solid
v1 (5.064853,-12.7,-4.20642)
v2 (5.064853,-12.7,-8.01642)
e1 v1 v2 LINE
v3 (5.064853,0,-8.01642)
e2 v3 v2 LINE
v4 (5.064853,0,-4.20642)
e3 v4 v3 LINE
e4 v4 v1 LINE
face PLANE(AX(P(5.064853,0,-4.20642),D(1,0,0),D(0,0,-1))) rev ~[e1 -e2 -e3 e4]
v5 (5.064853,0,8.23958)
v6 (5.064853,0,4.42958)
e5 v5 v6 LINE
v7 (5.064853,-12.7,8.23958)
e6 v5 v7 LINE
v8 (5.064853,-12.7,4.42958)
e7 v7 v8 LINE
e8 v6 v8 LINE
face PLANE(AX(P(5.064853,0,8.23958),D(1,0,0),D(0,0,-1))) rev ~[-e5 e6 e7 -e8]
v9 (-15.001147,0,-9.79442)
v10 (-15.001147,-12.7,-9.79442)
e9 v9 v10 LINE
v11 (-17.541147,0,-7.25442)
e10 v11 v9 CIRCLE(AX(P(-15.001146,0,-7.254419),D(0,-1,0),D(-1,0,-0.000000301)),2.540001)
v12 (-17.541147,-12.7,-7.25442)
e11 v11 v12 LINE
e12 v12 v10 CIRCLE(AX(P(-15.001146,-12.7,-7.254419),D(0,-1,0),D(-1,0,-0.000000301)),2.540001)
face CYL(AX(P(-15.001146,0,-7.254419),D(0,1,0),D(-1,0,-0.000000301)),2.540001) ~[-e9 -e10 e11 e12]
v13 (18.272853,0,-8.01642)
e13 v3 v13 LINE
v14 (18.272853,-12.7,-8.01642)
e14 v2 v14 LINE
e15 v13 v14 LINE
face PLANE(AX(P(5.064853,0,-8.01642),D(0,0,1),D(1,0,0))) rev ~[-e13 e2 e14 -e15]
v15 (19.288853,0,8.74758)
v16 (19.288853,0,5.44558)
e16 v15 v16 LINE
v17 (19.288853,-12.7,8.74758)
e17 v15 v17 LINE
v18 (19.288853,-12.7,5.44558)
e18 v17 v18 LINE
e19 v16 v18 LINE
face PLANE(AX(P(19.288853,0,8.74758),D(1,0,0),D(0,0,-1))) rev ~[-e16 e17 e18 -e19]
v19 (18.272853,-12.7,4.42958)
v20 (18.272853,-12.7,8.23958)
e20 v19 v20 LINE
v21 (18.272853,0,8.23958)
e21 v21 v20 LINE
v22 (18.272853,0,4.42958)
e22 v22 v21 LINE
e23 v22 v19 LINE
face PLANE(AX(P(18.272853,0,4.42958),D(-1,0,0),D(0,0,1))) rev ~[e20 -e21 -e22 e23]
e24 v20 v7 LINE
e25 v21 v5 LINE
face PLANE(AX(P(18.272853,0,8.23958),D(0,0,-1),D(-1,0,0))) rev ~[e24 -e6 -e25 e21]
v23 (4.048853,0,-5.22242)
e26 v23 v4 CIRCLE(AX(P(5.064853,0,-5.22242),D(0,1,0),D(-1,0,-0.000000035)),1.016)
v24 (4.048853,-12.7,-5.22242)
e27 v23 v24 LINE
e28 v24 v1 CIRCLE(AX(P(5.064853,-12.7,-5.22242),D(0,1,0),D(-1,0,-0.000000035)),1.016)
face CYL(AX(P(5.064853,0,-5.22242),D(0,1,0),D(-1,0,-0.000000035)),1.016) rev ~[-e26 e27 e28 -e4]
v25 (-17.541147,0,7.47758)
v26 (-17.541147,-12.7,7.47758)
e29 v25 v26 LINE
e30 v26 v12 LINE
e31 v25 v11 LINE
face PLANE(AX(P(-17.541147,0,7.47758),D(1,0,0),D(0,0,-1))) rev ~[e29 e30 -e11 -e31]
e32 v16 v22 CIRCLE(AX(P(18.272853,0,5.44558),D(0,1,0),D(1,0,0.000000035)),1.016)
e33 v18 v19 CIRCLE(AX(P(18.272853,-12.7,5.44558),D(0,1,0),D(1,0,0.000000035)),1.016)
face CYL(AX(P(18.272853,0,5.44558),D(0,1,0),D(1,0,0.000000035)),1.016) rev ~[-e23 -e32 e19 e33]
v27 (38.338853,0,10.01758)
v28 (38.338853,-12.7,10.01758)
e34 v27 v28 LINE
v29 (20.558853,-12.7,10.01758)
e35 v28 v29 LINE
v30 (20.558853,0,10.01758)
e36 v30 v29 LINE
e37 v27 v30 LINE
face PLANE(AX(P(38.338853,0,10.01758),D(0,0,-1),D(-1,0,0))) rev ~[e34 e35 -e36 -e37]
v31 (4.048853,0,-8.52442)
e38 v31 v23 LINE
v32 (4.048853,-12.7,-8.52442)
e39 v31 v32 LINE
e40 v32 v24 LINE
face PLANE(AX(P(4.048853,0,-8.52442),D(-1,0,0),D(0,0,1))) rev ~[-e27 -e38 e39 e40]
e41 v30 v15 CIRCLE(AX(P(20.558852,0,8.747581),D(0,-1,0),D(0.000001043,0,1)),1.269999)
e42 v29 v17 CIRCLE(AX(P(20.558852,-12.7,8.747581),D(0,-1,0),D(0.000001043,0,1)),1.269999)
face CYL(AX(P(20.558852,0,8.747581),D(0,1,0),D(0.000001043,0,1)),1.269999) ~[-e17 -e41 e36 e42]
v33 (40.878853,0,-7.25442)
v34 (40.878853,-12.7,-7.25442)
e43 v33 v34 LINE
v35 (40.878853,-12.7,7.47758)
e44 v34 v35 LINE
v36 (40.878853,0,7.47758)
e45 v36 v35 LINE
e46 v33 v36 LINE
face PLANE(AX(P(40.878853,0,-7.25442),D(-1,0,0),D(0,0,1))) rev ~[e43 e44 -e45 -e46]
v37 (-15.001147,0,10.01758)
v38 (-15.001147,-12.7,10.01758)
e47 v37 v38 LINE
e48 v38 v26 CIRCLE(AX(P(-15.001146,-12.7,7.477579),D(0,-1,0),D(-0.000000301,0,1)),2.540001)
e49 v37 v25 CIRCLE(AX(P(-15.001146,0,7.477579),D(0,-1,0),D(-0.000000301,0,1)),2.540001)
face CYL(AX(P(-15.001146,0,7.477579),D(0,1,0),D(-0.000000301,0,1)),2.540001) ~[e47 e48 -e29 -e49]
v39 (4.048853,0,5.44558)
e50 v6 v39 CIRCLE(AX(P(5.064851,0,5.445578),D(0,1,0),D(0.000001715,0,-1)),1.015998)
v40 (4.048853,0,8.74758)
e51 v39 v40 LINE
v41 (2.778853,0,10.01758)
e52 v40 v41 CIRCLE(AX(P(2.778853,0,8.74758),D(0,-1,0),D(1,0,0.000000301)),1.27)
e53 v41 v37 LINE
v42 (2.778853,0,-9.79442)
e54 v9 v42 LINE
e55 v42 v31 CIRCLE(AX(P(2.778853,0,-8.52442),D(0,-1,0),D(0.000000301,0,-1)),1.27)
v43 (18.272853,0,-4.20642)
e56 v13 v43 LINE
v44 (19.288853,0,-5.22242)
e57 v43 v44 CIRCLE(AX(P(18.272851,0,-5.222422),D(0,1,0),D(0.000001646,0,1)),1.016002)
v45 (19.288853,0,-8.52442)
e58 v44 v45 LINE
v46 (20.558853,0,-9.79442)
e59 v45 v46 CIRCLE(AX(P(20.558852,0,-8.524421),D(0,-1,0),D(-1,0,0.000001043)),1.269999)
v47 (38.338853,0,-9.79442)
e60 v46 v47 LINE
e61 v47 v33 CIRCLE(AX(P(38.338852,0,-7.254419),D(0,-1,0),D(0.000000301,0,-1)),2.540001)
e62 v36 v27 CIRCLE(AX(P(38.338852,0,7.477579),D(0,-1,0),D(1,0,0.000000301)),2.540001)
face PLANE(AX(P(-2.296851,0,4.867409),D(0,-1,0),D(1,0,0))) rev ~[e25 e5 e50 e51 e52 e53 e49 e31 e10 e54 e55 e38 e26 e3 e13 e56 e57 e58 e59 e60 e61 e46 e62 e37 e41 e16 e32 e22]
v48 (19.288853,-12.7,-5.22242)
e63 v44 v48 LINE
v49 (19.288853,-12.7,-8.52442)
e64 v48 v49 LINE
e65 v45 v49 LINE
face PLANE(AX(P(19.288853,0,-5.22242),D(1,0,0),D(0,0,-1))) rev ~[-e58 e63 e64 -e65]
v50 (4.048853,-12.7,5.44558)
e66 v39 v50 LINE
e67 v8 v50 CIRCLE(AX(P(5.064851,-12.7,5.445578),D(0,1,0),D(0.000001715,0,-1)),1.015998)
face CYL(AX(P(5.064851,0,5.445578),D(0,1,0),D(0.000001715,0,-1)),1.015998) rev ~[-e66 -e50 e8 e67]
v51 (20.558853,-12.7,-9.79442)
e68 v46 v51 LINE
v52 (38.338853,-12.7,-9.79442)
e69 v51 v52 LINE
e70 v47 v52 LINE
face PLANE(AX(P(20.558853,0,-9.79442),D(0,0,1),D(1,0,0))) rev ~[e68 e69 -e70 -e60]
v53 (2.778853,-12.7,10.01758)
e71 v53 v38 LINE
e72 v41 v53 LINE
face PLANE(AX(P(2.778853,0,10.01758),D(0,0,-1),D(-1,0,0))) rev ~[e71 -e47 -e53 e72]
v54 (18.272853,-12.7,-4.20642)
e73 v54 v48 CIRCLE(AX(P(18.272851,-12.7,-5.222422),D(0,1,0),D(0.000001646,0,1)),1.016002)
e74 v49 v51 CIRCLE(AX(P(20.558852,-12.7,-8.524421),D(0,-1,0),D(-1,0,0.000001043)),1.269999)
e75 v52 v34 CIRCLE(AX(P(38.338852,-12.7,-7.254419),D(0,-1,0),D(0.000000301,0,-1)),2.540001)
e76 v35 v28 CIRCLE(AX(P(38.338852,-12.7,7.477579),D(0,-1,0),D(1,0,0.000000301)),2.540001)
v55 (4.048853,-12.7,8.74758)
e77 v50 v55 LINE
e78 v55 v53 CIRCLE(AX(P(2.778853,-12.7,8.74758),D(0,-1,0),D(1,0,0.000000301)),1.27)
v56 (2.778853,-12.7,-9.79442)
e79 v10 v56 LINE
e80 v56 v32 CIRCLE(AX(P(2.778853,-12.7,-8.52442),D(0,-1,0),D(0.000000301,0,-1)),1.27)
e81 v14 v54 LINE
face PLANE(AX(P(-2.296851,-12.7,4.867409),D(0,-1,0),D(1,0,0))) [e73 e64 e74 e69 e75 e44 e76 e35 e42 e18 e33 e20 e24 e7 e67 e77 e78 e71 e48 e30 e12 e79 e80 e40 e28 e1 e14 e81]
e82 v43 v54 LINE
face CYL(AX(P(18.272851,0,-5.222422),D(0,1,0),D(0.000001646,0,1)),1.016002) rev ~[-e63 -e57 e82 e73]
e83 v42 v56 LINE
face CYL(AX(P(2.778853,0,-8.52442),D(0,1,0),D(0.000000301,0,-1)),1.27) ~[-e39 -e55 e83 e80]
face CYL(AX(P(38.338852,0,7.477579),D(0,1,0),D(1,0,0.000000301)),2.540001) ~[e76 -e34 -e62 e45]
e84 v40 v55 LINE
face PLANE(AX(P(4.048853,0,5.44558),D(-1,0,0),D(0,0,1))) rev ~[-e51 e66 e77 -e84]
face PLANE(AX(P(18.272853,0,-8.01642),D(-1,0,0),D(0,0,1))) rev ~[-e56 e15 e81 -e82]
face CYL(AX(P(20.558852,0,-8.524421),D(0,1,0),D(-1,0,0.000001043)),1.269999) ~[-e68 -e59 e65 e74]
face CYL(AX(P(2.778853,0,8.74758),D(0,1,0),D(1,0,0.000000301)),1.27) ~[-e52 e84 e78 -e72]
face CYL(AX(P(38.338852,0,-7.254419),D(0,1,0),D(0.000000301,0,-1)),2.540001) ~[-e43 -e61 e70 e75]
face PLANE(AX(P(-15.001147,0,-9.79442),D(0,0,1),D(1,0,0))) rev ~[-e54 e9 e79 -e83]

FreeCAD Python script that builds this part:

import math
import FreeCAD as App
import Part
import Sketcher
from FreeCAD import Vector
Q = App.Units.Quantity

doc = App.newDocument("Part")
body = doc.addObject("PartDesign::Body", "Body")

sketch1 = body.newObject("Sketcher::SketchObject", "Sketch")
sketch1.AttachmentSupport = (doc.getObject("XZ_Plane"), [""])
sketch1.MapMode = "FlatFace"
sketch1.addGeometry([
    Part.ArcOfCircle(Part.Circle(Vector(-15.001146, 7.477579, 0), Vector(0, 0, 1), 2.540001), math.radians(90.000017), math.radians(179.999983)),
    Part.LineSegment(Vector(-17.541147, 7.47758, 0), Vector(-17.541147, -7.25442, 0)),
    Part.ArcOfCircle(Part.Circle(Vector(-15.001146, -7.254419, 0), Vector(0, 0, 1), 2.540001), math.radians(-179.999983), math.radians(-90.000017)),
    Part.LineSegment(Vector(-15.001147, -9.79442, 0), Vector(2.778853, -9.79442, 0)),
    Part.ArcOfCircle(Part.Circle(Vector(2.778853, -8.52442, 0), Vector(0, 0, 1), 1.27), math.radians(-89.999983), math.radians(-0.000017)),
    Part.LineSegment(Vector(4.048853, -8.52442, 0), Vector(4.048853, -5.22242, 0)),
    Part.ArcOfCircle(Part.Circle(Vector(5.064853, -5.22242, 0), Vector(0, 0, 1), 1.016), math.radians(89.999998), math.radians(180.000002)),
    Part.LineSegment(Vector(5.064853, -4.20642, 0), Vector(5.064853, -8.01642, 0)),
    Part.LineSegment(Vector(5.064853, -8.01642, 0), Vector(18.272853, -8.01642, 0)),
    Part.LineSegment(Vector(18.272853, -8.01642, 0), Vector(18.272853, -4.20642, 0)),
    Part.ArcOfCircle(Part.Circle(Vector(18.272851, -5.222422, 0), Vector(0, 0, 1), 1.016002), math.radians(0.000094), math.radians(89.999906)),
    Part.LineSegment(Vector(19.288853, -5.22242, 0), Vector(19.288853, -8.52442, 0)),
    Part.ArcOfCircle(Part.Circle(Vector(20.558852, -8.524421, 0), Vector(0, 0, 1), 1.269999), math.radians(179.99994), math.radians(270.00006)),
    Part.LineSegment(Vector(20.558853, -9.79442, 0), Vector(38.338853, -9.79442, 0)),
    Part.ArcOfCircle(Part.Circle(Vector(38.338852, -7.254419, 0), Vector(0, 0, 1), 2.540001), math.radians(-89.999983), math.radians(-0.000017)),
    Part.LineSegment(Vector(40.878853, -7.25442, 0), Vector(40.878853, 7.47758, 0)),
    Part.ArcOfCircle(Part.Circle(Vector(38.338852, 7.477579, 0), Vector(0, 0, 1), 2.540001), math.radians(0.000017), math.radians(89.999983)),
    Part.LineSegment(Vector(38.338853, 10.01758, 0), Vector(20.558853, 10.01758, 0)),
    Part.ArcOfCircle(Part.Circle(Vector(20.558852, 8.747581, 0), Vector(0, 0, 1), 1.269999), math.radians(89.99994), math.radians(180.00006)),
    Part.LineSegment(Vector(19.288853, 8.74758, 0), Vector(19.288853, 5.44558, 0)),
    Part.ArcOfCircle(Part.Circle(Vector(18.272853, 5.44558, 0), Vector(0, 0, 1), 1.016), math.radians(-90.000002), math.radians(0.000002)),
    Part.LineSegment(Vector(18.272853, 4.42958, 0), Vector(18.272853, 8.23958, 0)),
    Part.LineSegment(Vector(18.272853, 8.23958, 0), Vector(5.064853, 8.23958, 0)),
    Part.LineSegment(Vector(5.064853, 8.23958, 0), Vector(5.064853, 4.42958, 0)),
    Part.ArcOfCircle(Part.Circle(Vector(5.064851, 5.445578, 0), Vector(0, 0, 1), 1.015998), math.radians(179.999902), math.radians(270.000098)),
    Part.LineSegment(Vector(4.048853, 5.44558, 0), Vector(4.048853, 8.74758, 0)),
    Part.ArcOfCircle(Part.Circle(Vector(2.778853, 8.74758, 0), Vector(0, 0, 1), 1.27), math.radians(0.000017), math.radians(89.999983)),
    Part.LineSegment(Vector(2.778853, 10.01758, 0), Vector(-15.001147, 10.01758, 0)),
], False)
sketch1.addConstraint([
    Sketcher.Constraint("Tangent", 0, 2, 1, 1),
    Sketcher.Constraint("Tangent", 1, 2, 2, 1),
    Sketcher.Constraint("Tangent", 2, 2, 3, 1),
    Sketcher.Constraint("Tangent", 3, 2, 4, 1),
    Sketcher.Constraint("Tangent", 4, 2, 5, 1),
    Sketcher.Constraint("Tangent", 5, 2, 6, 2),
    Sketcher.Constraint("Coincident", 6, 1, 7, 1),
    Sketcher.Constraint("Coincident", 7, 2, 8, 1),
    Sketcher.Constraint("Coincident", 8, 2, 9, 1),
    Sketcher.Constraint("Coincident", 9, 2, 10, 2),
    Sketcher.Constraint("Tangent", 10, 1, 11, 1),
    Sketcher.Constraint("Tangent", 11, 2, 12, 1),
    Sketcher.Constraint("Tangent", 12, 2, 13, 1),
    Sketcher.Constraint("Tangent", 13, 2, 14, 1),
    Sketcher.Constraint("Tangent", 14, 2, 15, 1),
    Sketcher.Constraint("Tangent", 15, 2, 16, 1),
    Sketcher.Constraint("Tangent", 16, 2, 17, 1),
    Sketcher.Constraint("Tangent", 17, 2, 18, 1),
    Sketcher.Constraint("Tangent", 18, 2, 19, 1),
    Sketcher.Constraint("Tangent", 19, 2, 20, 2),
    Sketcher.Constraint("Coincident", 20, 1, 21, 1),
    Sketcher.Constraint("Coincident", 21, 2, 22, 1),
    Sketcher.Constraint("Coincident", 22, 2, 23, 1),
    Sketcher.Constraint("Coincident", 23, 2, 24, 2),
    Sketcher.Constraint("Tangent", 24, 1, 25, 1),
    Sketcher.Constraint("Tangent", 25, 2, 26, 1),
    Sketcher.Constraint("Tangent", 26, 2, 27, 1),
    Sketcher.Constraint("Tangent", 27, 2, 0, 1),
    Sketcher.Constraint("Vertical", 1),
    Sketcher.Constraint("Horizontal", 3),
    Sketcher.Constraint("Vertical", 5),
    Sketcher.Constraint("Vertical", 7),
    Sketcher.Constraint("Horizontal", 8),
    Sketcher.Constraint("Vertical", 9),
    Sketcher.Constraint("Vertical", 11),
    Sketcher.Constraint("Horizontal", 13),
    Sketcher.Constraint("Vertical", 15),
    Sketcher.Constraint("Horizontal", 17),
    Sketcher.Constraint("Vertical", 19),
    Sketcher.Constraint("Vertical", 21),
    Sketcher.Constraint("Horizontal", 22),
    Sketcher.Constraint("Vertical", 23),
    Sketcher.Constraint("Vertical", 25),
    Sketcher.Constraint("Horizontal", 27),
    Sketcher.Constraint("Equal", 0, 2),
    Sketcher.Constraint("Equal", 6, 10),
    Sketcher.Constraint("Equal", 4, 12),
    Sketcher.Constraint("Equal", 2, 14),
    Sketcher.Constraint("Equal", 14, 16),
    Sketcher.Constraint("Equal", 12, 18),
    Sketcher.Constraint("Equal", 10, 20),
    Sketcher.Constraint("Equal", 20, 24),
    Sketcher.Constraint("Equal", 18, 26),
    Sketcher.Constraint("Horizontal", 6, 3, 10, 3),
    Sketcher.Constraint("Horizontal", 4, 3, 12, 3),
    Sketcher.Constraint("Horizontal", 0, 3, 16, 3),
    Sketcher.Constraint("Horizontal", 20, 3, 24, 3),
    Sketcher.Constraint("Vertical", 12, 3, 18, 3),
    Sketcher.Constraint("Vertical", 6, 3, 24, 3),
    Sketcher.Constraint("Vertical", 24, 3, 6, 1),
    Sketcher.Constraint("Vertical", 20, 3, 8, 2),
    Sketcher.Constraint("Vertical", 9, 2, 20, 1),
    Sketcher.Constraint("Vertical", 7, 2, 22, 2),
    Sketcher.Constraint("Equal", 3, 13),
    Sketcher.Constraint("Equal", 11, 19),
    Sketcher.Constraint("Equal", 9, 21),
    Sketcher.Constraint("Radius", 0, Q("0.1 in")),
    Sketcher.Constraint("Radius", 4, Q("0.05 in")),
    Sketcher.Constraint("Radius", 6, Q("0.04 in")),
    Sketcher.Constraint("DistanceX", 3, 1, 3, 2, Q("0.7 in")),
    Sketcher.Constraint("DistanceX", 8, 1, 8, 2, Q("0.52 in")),
    Sketcher.Constraint("DistanceY", 1, 2, 1, 1, Q("0.58 in")),
    Sketcher.Constraint("DistanceY", 5, 1, 5, 2, Q("0.13 in")),
    Sketcher.Constraint("DistanceY", 7, 2, 7, 1, Q("0.15 in")),
    Sketcher.Constraint("DistanceY", -1, 1, 0, 3, 7.477579),
    Sketcher.Constraint("DistanceX", -1, 1, 10, 3, 18.272851),
])
pad1 = body.newObject("PartDesign::Pad", "Pad")
pad1.Profile = sketch1
pad1.Length = Q("0.5 in")

doc.recompute()
